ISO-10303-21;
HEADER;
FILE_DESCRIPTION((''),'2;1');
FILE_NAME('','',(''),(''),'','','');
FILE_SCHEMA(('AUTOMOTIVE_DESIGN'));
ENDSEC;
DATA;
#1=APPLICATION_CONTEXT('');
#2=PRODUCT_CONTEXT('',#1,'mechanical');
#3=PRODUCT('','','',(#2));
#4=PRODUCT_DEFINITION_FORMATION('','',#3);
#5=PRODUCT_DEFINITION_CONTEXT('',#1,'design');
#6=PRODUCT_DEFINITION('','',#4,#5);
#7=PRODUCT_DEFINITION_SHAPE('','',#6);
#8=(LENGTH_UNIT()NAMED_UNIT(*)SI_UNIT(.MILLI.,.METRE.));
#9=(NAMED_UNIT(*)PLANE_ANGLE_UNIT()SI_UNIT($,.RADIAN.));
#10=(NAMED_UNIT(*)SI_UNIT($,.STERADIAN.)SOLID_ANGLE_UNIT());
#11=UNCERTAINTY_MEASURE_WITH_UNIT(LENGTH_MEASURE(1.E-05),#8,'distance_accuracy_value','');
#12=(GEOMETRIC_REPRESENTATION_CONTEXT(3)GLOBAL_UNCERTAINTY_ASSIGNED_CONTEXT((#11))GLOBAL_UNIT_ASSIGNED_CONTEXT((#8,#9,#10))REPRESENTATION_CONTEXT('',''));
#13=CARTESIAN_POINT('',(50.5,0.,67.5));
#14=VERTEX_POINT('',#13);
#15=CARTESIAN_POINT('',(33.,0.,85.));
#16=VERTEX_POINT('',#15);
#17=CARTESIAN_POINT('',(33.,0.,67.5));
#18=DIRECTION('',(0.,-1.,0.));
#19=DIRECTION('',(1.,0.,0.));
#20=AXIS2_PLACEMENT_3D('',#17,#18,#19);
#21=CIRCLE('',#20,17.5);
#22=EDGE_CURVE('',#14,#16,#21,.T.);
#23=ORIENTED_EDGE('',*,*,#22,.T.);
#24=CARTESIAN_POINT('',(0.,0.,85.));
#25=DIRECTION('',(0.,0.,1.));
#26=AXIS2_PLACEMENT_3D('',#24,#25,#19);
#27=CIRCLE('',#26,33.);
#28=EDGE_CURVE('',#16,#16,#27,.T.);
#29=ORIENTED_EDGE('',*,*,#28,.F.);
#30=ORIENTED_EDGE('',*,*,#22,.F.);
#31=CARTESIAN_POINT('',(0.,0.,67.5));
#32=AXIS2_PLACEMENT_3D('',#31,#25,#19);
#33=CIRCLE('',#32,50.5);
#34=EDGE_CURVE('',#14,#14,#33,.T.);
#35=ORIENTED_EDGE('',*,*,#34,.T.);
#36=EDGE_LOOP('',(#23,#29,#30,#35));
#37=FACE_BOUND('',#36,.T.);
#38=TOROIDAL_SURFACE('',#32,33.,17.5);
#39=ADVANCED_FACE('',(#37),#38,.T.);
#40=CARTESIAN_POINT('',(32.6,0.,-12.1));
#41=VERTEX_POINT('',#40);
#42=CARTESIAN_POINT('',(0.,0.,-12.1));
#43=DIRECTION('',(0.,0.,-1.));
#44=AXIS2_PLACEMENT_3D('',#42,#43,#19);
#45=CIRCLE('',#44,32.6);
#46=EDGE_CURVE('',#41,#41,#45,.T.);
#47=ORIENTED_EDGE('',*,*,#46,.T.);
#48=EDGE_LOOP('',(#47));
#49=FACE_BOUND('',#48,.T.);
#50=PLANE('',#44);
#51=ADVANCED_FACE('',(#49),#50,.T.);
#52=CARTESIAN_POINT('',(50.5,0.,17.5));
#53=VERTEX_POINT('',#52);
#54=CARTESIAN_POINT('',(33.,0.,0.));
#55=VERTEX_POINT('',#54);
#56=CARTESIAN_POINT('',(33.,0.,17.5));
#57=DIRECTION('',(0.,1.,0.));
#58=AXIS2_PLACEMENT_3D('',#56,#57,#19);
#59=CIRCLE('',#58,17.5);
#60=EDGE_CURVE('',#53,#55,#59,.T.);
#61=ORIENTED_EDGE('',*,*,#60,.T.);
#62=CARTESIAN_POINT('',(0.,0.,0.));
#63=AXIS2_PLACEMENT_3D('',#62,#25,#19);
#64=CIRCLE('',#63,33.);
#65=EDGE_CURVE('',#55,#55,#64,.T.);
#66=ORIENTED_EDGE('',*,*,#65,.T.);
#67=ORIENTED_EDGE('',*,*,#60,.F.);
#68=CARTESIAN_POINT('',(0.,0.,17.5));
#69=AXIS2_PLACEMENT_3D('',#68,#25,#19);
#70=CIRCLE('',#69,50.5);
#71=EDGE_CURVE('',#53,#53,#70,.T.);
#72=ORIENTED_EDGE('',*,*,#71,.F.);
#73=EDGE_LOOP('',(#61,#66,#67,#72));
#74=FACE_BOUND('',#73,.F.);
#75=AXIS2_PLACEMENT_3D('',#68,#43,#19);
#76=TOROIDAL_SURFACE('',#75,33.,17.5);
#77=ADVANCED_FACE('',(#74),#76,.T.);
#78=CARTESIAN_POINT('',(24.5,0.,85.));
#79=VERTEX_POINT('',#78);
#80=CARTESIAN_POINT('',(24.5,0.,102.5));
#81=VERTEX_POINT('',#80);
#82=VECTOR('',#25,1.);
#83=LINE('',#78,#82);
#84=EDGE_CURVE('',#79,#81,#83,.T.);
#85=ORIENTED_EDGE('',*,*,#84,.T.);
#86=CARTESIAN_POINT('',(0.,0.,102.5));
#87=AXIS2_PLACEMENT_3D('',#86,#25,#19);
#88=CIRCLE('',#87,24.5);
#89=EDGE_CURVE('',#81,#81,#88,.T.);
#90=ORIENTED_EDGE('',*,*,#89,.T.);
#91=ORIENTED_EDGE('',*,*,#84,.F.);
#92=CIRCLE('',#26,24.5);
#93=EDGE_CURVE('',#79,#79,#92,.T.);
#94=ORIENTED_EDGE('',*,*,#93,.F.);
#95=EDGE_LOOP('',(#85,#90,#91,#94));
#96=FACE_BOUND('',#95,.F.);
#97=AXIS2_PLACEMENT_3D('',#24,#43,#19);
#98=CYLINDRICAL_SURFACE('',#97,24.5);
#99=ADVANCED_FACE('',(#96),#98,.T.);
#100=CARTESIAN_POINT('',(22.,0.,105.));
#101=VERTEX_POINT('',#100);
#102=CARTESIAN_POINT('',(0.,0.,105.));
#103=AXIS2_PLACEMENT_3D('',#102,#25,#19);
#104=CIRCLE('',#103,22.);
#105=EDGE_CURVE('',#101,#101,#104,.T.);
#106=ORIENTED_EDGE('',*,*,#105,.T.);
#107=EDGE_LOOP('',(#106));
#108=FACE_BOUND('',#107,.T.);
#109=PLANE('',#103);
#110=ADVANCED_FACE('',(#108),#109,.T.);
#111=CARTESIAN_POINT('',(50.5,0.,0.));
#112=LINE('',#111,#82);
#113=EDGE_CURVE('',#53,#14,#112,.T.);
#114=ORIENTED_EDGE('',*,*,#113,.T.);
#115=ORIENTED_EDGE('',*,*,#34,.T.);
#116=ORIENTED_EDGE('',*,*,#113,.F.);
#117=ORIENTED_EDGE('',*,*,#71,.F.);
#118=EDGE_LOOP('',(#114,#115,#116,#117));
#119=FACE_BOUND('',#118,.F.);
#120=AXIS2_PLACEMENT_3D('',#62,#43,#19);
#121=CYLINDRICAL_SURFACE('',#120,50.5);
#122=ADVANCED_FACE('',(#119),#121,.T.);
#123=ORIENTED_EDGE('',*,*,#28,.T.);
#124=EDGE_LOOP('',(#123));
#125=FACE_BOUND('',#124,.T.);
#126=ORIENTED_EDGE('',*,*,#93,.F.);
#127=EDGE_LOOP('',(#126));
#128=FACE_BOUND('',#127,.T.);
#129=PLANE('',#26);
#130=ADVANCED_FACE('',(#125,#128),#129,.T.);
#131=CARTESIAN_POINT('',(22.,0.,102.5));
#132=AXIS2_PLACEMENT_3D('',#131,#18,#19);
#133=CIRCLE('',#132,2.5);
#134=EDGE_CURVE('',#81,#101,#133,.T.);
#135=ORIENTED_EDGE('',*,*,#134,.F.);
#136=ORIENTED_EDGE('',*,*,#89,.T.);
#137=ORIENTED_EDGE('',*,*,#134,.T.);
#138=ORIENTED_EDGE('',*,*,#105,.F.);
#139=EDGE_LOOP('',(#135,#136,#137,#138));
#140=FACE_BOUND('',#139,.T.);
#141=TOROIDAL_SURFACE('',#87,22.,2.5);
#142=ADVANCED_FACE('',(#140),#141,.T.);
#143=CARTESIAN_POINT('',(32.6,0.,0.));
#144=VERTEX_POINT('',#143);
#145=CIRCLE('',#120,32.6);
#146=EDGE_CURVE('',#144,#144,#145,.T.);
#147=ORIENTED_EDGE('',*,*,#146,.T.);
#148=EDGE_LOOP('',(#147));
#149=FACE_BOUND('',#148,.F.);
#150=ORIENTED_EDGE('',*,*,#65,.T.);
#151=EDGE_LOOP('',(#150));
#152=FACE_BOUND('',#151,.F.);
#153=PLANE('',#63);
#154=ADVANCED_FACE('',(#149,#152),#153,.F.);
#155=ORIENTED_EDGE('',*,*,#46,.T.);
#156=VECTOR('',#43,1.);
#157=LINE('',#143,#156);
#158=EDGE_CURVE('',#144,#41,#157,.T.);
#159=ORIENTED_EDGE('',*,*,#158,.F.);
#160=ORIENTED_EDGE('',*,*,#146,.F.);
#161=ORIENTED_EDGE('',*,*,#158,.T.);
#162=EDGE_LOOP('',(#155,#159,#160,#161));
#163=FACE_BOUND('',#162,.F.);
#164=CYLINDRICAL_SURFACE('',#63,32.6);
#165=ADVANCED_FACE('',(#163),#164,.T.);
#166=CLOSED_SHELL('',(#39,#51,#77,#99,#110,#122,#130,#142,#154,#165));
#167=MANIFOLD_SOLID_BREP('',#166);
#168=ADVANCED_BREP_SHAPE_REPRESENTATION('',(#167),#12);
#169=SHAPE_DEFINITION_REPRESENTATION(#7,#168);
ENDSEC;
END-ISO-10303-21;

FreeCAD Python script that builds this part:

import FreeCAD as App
import Part
import Sketcher
from FreeCAD import Vector


def edges_at(feature, points):
    """Names of the edges that pass closest to the given points."""
    edges = feature.Shape.Edges
    near = lambda p: min(range(len(edges)), key=lambda i: edges[i].distToShape(Part.Vertex(*p))[0])
    return sorted({f"Edge{near(p) + 1}" for p in points})

doc = App.newDocument("Part")
params = doc.addObject("Spreadsheet::Sheet", "Params")
for row, (alias, value) in enumerate([
    ("sketch1_diameter", "101 mm"),
    ("pad1_length", "85 mm"),
    ("fillet_radius", "17.5 mm"),
    ("sketch2_diameter", "49 mm"),
    ("pad2_length", "20 mm"),
    ("fillet2_radius", "2.5 mm"),
    ("sketch3_diameter", "65.2 mm"),
    ("pad3_length", "12.1 mm"),
], start=1):
    params.set(f"A{row}", alias)
    params.set(f"B{row}", "=" + value)
    params.setAlias(f"B{row}", alias)

body = doc.addObject("PartDesign::Body", "Body")

# Sketch on XY plane
sketch1 = body.newObject("Sketcher::SketchObject", "Sketch")
sketch1.AttachmentSupport = (doc.getObject("XY_Plane"), [""])
sketch1.MapMode = "FlatFace"
sketch1.addGeometry(Part.Circle(Vector(0, 0, 0), Vector(0, 0, 1), 50), False)
sketch1.addConstraint(Sketcher.Constraint("Coincident", 0, 3, -1, 1))
sketch1.addConstraint(Sketcher.Constraint("Diameter", 0, 101.0))
sketch1.setExpression("Constraints[1]", "Params.sketch1_diameter")
pad1 = body.newObject("PartDesign::Pad", "Pad")
pad1.Profile = sketch1
pad1.setExpression("Length", "Params.pad1_length")
doc.recompute()

fillet = body.newObject("PartDesign::Fillet", "Fillet")
fillet.Base = (pad1, ["Edge1"])
fillet.UseAllEdges = True
fillet.setExpression("Radius", "Params.fillet_radius")

# Sketch on XY plane
sketch2 = body.newObject("Sketcher::SketchObject", "Sketch001")
sketch2.AttachmentSupport = (doc.getObject("XY_Plane"), [""])
sketch2.MapMode = "FlatFace"
sketch2.AttachmentOffset = App.Placement(Vector(0, 0, 85), App.Rotation())
sketch2.addGeometry(Part.Circle(Vector(0, 0, 0), Vector(0, 0, 1), 24), False)
sketch2.addConstraint(Sketcher.Constraint("Coincident", 0, 3, -1, 1))
sketch2.addConstraint(Sketcher.Constraint("Diameter", 0, 49.0))
sketch2.setExpression("Constraints[1]", "Params.sketch2_diameter")
pad2 = body.newObject("PartDesign::Pad", "Pad001")
pad2.Profile = sketch2
pad2.setExpression("Length", "Params.pad2_length")
doc.recompute()

fillet2 = body.newObject("PartDesign::Fillet", "Fillet001")
fillet2.Base = (pad2, edges_at(pad2, [(-24.5, 0, 105)]))
fillet2.setExpression("Radius", "Params.fillet2_radius")

# Sketch on XY plane
sketch3 = body.newObject("Sketcher::SketchObject", "Sketch002")
sketch3.AttachmentSupport = (doc.getObject("XY_Plane"), [""])
sketch3.MapMode = "FlatFace"
sketch3.addGeometry(Part.Circle(Vector(0, 0, 0), Vector(0, 0, 1), 33), False)
sketch3.addConstraint(Sketcher.Constraint("Coincident", 0, 3, -1, 1))
sketch3.addConstraint(Sketcher.Constraint("Diameter", 0, 65.2))
sketch3.setExpression("Constraints[1]", "Params.sketch3_diameter")
pad3 = body.newObject("PartDesign::Pad", "Pad002")
pad3.Profile = sketch3
pad3.setExpression("Length", "Params.pad3_length")
pad3.Reversed = True

doc.recompute()
